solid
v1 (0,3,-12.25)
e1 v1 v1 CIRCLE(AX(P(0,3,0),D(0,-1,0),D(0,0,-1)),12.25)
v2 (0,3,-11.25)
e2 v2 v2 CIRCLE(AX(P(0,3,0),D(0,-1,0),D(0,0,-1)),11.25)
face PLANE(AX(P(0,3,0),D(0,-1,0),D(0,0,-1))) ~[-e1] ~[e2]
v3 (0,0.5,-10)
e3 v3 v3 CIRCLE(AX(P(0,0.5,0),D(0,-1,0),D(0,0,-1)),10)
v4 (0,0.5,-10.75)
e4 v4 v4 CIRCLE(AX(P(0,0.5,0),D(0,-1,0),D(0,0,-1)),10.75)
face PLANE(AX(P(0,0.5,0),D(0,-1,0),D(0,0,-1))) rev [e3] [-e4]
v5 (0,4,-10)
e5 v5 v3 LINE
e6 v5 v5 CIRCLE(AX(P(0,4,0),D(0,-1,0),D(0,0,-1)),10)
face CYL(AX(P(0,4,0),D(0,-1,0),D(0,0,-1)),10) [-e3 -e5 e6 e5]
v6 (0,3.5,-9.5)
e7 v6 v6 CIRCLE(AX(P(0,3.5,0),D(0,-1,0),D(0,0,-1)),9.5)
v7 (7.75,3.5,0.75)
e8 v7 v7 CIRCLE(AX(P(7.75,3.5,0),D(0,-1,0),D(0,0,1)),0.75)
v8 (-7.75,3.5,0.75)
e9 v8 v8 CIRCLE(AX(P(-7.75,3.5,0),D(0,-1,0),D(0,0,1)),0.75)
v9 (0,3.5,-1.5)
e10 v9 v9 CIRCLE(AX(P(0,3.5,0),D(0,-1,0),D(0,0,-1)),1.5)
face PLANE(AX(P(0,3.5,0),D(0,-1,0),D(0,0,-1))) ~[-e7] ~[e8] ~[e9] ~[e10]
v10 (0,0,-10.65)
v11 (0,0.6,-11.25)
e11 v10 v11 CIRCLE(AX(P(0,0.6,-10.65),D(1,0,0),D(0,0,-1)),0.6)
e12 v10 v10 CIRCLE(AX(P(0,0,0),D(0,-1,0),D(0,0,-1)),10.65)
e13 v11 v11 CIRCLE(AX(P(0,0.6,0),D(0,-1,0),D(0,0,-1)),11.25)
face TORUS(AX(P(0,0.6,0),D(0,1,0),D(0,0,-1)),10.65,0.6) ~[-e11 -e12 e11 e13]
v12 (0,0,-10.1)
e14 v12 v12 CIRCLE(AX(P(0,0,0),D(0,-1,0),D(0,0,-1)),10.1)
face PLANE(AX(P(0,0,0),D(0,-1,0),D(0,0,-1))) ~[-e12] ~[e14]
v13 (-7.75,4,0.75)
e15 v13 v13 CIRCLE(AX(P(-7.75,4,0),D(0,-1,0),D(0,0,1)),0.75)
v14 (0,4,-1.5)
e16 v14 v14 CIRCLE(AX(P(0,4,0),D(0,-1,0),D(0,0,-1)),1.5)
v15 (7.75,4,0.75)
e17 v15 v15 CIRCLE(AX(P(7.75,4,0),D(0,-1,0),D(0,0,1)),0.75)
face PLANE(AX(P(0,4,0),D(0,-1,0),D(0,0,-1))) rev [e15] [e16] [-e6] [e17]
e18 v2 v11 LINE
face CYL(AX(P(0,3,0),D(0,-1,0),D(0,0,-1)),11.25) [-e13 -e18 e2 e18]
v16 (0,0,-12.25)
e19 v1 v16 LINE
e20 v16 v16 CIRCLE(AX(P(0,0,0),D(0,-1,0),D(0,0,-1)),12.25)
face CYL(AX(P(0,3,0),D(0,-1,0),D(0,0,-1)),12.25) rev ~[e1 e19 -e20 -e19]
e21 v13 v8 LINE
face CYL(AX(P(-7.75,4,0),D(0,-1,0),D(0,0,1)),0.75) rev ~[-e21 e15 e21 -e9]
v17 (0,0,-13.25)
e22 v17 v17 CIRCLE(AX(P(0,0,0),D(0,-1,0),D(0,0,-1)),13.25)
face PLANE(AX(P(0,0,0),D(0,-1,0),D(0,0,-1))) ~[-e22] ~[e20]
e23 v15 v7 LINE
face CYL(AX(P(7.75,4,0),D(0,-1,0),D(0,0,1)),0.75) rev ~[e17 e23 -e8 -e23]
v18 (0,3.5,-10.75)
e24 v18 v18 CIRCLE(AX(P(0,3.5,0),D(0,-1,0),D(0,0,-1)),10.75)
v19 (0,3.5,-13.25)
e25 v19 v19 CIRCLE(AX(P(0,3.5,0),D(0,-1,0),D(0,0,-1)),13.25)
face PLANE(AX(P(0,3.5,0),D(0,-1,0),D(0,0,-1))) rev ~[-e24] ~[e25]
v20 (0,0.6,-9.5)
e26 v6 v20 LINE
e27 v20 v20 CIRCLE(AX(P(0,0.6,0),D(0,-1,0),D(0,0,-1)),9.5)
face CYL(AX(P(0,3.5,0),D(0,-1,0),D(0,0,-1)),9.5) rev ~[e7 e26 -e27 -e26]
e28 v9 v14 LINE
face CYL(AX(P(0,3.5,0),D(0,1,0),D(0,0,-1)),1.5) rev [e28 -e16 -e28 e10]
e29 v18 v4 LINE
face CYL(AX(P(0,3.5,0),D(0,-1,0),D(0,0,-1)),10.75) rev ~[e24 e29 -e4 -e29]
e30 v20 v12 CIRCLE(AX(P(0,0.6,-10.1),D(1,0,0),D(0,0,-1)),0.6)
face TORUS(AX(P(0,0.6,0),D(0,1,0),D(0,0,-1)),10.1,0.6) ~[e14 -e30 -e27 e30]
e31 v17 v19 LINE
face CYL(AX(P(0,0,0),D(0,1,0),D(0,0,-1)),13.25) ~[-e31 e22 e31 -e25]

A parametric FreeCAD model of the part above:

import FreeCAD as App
import Part
import Sketcher
from FreeCAD import Vector


def edges_at(feature, points):
    """Names of the edges that pass closest to the given points."""
    edges = feature.Shape.Edges
    near = lambda p: min(range(len(edges)), key=lambda i: edges[i].distToShape(Part.Vertex(*p))[0])
    return sorted({f"Edge{near(p) + 1}" for p in points})

doc = App.newDocument("Part")
body = doc.addObject("PartDesign::Body", "Body")

# Sketch on YZ plane
sketch1 = body.newObject("Sketcher::SketchObject", "Sketch")
sketch1.AttachmentSupport = (doc.getObject("YZ_Plane"), [""])
sketch1.MapMode = "FlatFace"
sketch1.addGeometry([
    Part.LineSegment(Vector(3.5, -9.5, 0), Vector(0, -9.5, 0)),  # 0
    Part.LineSegment(Vector(0, -9.5, 0), Vector(0, -11.2, 0)),  # 1
    Part.LineSegment(Vector(0, -11.2, 0), Vector(3, -11.2, 0)),  # 2
    Part.LineSegment(Vector(3, -11.2, 0), Vector(3, -12.2, 0)),  # 3
    Part.LineSegment(Vector(3, -12.2, 0), Vector(0, -12.2, 0)),  # 4
    Part.LineSegment(Vector(0, -12.2, 0), Vector(0, -13.2, 0)),  # 5
    Part.LineSegment(Vector(0, -13.2, 0), Vector(3.5, -13.2, 0)),  # 6
    Part.LineSegment(Vector(3.5, -13.2, 0), Vector(3.5, -10.8, 0)),  # 7
    Part.LineSegment(Vector(3.5, -10.8, 0), Vector(0.5, -10.8, 0)),  # 8
    Part.LineSegment(Vector(0.5, -10.8, 0), Vector(0.5, -10, 0)),  # 9
    Part.LineSegment(Vector(0.5, -10, 0), Vector(4, -10, 0)),  # 10
    Part.LineSegment(Vector(4, -10, 0), Vector(4, -1.5, 0)),  # 11
    Part.LineSegment(Vector(4, -1.5, 0), Vector(3.5, -1.5, 0)),  # 12
    Part.LineSegment(Vector(3.5, -1.5, 0), Vector(3.5, -9.5, 0)),  # 13
], False)
sketch1.addConstraint([
    Sketcher.Constraint("Coincident", 0, 2, 1, 1),
    Sketcher.Constraint("Coincident", 1, 2, 2, 1),
    Sketcher.Constraint("Coincident", 2, 2, 3, 1),
    Sketcher.Constraint("Coincident", 3, 2, 4, 1),
    Sketcher.Constraint("Coincident", 4, 2, 5, 1),
    Sketcher.Constraint("Coincident", 5, 2, 6, 1),
    Sketcher.Constraint("Coincident", 6, 2, 7, 1),
    Sketcher.Constraint("Coincident", 7, 2, 8, 1),
    Sketcher.Constraint("Coincident", 8, 2, 9, 1),
    Sketcher.Constraint("Coincident", 9, 2, 10, 1),
    Sketcher.Constraint("Coincident", 10, 2, 11, 1),
    Sketcher.Constraint("Coincident", 11, 2, 12, 1),
    Sketcher.Constraint("Coincident", 12, 2, 13, 1),
    Sketcher.Constraint("Coincident", 13, 2, 0, 1),
    Sketcher.Constraint("Horizontal", 0),
    Sketcher.Constraint("Vertical", 1),
    Sketcher.Constraint("Horizontal", 2),
    Sketcher.Constraint("Vertical", 3),
    Sketcher.Constraint("Horizontal", 4),
    Sketcher.Constraint("Vertical", 5),
    Sketcher.Constraint("Horizontal", 6),
    Sketcher.Constraint("Vertical", 7),
    Sketcher.Constraint("Horizontal", 8),
    Sketcher.Constraint("Vertical", 9),
    Sketcher.Constraint("Horizontal", 10),
    Sketcher.Constraint("Vertical", 11),
    Sketcher.Constraint("Horizontal", 12),
    Sketcher.Constraint("Vertical", 13),
    Sketcher.Constraint("PointOnObject", 0, 2, -2),
    Sketcher.Constraint("PointOnObject", 4, 2, -2),
    Sketcher.Constraint("Vertical", 7, 2, 12, 2),
    Sketcher.Constraint("Equal", 4, 8),
    Sketcher.Constraint("Equal", 6, 10),
    Sketcher.Constraint("Equal", 3, 5),
    Sketcher.Constraint("DistanceX", 2, 1, 2, 2, 3.0),
    Sketcher.Constraint("DistanceY", 3, 2, 3, 1, 1.0),
    Sketcher.Constraint("DistanceX", 0, 2, 0, 1, 3.5),
    Sketcher.Constraint("DistanceY", 7, 1, 7, 2, 2.5),
    Sketcher.Constraint("DistanceY", 9, 2, 0, 2, 0.5),
    Sketcher.Constraint("DistanceY", 13, 2, 13, 1, 8.0),
    Sketcher.Constraint("DistanceY", 9, 2, -1, 1, 10.0),
    Sketcher.Constraint("DistanceY", 1, 2, 1, 1, 1.75),
])
revolution = body.newObject("PartDesign::Revolution", "Revolution")
revolution.Profile = sketch1
revolution.ReferenceAxis = (sketch1, ["H_Axis"])
revolution.Angle = 360

# Sketch on XZ plane
sketch2 = body.newObject("Sketcher::SketchObject", "Sketch001")
sketch2.AttachmentSupport = (doc.getObject("XZ_Plane"), [""])
sketch2.MapMode = "FlatFace"
sketch2.AttachmentOffset = App.Placement(Vector(0, 0, -4), App.Rotation())
sketch2.addGeometry([
    Part.Circle(Vector(-7.8, 0, 0), Vector(0, 0, 1), 0.8),
    Part.Circle(Vector(7.8, 0, 0), Vector(0, 0, 1), 0.8),
], False)
sketch2.addConstraint([
    Sketcher.Constraint("Equal", 0, 1),
    Sketcher.Constraint("Symmetric", 0, 3, 1, 3, -1, 1),
    Sketcher.Constraint("PointOnObject", 0, 3, -1),
    Sketcher.Constraint("Diameter", 0, 1.5),
    Sketcher.Constraint("DistanceX", 0, 3, 1, 3, 15.5),
])
doc.recompute()
hole = body.newObject("PartDesign::Hole", "Hole")
hole.Profile = sketch2
hole.ThreadType = "None"
hole.Diameter = 1.5
hole.DepthType = "ThroughAll"
hole.Reversed = True
doc.recompute()

fillet = body.newObject("PartDesign::Fillet", "Fillet")
fillet.Base = (hole, edges_at(hole, [(0, 0, 11.25), (0, 0, 9.5)]))
fillet.Radius = 0.6

doc.recompute()
